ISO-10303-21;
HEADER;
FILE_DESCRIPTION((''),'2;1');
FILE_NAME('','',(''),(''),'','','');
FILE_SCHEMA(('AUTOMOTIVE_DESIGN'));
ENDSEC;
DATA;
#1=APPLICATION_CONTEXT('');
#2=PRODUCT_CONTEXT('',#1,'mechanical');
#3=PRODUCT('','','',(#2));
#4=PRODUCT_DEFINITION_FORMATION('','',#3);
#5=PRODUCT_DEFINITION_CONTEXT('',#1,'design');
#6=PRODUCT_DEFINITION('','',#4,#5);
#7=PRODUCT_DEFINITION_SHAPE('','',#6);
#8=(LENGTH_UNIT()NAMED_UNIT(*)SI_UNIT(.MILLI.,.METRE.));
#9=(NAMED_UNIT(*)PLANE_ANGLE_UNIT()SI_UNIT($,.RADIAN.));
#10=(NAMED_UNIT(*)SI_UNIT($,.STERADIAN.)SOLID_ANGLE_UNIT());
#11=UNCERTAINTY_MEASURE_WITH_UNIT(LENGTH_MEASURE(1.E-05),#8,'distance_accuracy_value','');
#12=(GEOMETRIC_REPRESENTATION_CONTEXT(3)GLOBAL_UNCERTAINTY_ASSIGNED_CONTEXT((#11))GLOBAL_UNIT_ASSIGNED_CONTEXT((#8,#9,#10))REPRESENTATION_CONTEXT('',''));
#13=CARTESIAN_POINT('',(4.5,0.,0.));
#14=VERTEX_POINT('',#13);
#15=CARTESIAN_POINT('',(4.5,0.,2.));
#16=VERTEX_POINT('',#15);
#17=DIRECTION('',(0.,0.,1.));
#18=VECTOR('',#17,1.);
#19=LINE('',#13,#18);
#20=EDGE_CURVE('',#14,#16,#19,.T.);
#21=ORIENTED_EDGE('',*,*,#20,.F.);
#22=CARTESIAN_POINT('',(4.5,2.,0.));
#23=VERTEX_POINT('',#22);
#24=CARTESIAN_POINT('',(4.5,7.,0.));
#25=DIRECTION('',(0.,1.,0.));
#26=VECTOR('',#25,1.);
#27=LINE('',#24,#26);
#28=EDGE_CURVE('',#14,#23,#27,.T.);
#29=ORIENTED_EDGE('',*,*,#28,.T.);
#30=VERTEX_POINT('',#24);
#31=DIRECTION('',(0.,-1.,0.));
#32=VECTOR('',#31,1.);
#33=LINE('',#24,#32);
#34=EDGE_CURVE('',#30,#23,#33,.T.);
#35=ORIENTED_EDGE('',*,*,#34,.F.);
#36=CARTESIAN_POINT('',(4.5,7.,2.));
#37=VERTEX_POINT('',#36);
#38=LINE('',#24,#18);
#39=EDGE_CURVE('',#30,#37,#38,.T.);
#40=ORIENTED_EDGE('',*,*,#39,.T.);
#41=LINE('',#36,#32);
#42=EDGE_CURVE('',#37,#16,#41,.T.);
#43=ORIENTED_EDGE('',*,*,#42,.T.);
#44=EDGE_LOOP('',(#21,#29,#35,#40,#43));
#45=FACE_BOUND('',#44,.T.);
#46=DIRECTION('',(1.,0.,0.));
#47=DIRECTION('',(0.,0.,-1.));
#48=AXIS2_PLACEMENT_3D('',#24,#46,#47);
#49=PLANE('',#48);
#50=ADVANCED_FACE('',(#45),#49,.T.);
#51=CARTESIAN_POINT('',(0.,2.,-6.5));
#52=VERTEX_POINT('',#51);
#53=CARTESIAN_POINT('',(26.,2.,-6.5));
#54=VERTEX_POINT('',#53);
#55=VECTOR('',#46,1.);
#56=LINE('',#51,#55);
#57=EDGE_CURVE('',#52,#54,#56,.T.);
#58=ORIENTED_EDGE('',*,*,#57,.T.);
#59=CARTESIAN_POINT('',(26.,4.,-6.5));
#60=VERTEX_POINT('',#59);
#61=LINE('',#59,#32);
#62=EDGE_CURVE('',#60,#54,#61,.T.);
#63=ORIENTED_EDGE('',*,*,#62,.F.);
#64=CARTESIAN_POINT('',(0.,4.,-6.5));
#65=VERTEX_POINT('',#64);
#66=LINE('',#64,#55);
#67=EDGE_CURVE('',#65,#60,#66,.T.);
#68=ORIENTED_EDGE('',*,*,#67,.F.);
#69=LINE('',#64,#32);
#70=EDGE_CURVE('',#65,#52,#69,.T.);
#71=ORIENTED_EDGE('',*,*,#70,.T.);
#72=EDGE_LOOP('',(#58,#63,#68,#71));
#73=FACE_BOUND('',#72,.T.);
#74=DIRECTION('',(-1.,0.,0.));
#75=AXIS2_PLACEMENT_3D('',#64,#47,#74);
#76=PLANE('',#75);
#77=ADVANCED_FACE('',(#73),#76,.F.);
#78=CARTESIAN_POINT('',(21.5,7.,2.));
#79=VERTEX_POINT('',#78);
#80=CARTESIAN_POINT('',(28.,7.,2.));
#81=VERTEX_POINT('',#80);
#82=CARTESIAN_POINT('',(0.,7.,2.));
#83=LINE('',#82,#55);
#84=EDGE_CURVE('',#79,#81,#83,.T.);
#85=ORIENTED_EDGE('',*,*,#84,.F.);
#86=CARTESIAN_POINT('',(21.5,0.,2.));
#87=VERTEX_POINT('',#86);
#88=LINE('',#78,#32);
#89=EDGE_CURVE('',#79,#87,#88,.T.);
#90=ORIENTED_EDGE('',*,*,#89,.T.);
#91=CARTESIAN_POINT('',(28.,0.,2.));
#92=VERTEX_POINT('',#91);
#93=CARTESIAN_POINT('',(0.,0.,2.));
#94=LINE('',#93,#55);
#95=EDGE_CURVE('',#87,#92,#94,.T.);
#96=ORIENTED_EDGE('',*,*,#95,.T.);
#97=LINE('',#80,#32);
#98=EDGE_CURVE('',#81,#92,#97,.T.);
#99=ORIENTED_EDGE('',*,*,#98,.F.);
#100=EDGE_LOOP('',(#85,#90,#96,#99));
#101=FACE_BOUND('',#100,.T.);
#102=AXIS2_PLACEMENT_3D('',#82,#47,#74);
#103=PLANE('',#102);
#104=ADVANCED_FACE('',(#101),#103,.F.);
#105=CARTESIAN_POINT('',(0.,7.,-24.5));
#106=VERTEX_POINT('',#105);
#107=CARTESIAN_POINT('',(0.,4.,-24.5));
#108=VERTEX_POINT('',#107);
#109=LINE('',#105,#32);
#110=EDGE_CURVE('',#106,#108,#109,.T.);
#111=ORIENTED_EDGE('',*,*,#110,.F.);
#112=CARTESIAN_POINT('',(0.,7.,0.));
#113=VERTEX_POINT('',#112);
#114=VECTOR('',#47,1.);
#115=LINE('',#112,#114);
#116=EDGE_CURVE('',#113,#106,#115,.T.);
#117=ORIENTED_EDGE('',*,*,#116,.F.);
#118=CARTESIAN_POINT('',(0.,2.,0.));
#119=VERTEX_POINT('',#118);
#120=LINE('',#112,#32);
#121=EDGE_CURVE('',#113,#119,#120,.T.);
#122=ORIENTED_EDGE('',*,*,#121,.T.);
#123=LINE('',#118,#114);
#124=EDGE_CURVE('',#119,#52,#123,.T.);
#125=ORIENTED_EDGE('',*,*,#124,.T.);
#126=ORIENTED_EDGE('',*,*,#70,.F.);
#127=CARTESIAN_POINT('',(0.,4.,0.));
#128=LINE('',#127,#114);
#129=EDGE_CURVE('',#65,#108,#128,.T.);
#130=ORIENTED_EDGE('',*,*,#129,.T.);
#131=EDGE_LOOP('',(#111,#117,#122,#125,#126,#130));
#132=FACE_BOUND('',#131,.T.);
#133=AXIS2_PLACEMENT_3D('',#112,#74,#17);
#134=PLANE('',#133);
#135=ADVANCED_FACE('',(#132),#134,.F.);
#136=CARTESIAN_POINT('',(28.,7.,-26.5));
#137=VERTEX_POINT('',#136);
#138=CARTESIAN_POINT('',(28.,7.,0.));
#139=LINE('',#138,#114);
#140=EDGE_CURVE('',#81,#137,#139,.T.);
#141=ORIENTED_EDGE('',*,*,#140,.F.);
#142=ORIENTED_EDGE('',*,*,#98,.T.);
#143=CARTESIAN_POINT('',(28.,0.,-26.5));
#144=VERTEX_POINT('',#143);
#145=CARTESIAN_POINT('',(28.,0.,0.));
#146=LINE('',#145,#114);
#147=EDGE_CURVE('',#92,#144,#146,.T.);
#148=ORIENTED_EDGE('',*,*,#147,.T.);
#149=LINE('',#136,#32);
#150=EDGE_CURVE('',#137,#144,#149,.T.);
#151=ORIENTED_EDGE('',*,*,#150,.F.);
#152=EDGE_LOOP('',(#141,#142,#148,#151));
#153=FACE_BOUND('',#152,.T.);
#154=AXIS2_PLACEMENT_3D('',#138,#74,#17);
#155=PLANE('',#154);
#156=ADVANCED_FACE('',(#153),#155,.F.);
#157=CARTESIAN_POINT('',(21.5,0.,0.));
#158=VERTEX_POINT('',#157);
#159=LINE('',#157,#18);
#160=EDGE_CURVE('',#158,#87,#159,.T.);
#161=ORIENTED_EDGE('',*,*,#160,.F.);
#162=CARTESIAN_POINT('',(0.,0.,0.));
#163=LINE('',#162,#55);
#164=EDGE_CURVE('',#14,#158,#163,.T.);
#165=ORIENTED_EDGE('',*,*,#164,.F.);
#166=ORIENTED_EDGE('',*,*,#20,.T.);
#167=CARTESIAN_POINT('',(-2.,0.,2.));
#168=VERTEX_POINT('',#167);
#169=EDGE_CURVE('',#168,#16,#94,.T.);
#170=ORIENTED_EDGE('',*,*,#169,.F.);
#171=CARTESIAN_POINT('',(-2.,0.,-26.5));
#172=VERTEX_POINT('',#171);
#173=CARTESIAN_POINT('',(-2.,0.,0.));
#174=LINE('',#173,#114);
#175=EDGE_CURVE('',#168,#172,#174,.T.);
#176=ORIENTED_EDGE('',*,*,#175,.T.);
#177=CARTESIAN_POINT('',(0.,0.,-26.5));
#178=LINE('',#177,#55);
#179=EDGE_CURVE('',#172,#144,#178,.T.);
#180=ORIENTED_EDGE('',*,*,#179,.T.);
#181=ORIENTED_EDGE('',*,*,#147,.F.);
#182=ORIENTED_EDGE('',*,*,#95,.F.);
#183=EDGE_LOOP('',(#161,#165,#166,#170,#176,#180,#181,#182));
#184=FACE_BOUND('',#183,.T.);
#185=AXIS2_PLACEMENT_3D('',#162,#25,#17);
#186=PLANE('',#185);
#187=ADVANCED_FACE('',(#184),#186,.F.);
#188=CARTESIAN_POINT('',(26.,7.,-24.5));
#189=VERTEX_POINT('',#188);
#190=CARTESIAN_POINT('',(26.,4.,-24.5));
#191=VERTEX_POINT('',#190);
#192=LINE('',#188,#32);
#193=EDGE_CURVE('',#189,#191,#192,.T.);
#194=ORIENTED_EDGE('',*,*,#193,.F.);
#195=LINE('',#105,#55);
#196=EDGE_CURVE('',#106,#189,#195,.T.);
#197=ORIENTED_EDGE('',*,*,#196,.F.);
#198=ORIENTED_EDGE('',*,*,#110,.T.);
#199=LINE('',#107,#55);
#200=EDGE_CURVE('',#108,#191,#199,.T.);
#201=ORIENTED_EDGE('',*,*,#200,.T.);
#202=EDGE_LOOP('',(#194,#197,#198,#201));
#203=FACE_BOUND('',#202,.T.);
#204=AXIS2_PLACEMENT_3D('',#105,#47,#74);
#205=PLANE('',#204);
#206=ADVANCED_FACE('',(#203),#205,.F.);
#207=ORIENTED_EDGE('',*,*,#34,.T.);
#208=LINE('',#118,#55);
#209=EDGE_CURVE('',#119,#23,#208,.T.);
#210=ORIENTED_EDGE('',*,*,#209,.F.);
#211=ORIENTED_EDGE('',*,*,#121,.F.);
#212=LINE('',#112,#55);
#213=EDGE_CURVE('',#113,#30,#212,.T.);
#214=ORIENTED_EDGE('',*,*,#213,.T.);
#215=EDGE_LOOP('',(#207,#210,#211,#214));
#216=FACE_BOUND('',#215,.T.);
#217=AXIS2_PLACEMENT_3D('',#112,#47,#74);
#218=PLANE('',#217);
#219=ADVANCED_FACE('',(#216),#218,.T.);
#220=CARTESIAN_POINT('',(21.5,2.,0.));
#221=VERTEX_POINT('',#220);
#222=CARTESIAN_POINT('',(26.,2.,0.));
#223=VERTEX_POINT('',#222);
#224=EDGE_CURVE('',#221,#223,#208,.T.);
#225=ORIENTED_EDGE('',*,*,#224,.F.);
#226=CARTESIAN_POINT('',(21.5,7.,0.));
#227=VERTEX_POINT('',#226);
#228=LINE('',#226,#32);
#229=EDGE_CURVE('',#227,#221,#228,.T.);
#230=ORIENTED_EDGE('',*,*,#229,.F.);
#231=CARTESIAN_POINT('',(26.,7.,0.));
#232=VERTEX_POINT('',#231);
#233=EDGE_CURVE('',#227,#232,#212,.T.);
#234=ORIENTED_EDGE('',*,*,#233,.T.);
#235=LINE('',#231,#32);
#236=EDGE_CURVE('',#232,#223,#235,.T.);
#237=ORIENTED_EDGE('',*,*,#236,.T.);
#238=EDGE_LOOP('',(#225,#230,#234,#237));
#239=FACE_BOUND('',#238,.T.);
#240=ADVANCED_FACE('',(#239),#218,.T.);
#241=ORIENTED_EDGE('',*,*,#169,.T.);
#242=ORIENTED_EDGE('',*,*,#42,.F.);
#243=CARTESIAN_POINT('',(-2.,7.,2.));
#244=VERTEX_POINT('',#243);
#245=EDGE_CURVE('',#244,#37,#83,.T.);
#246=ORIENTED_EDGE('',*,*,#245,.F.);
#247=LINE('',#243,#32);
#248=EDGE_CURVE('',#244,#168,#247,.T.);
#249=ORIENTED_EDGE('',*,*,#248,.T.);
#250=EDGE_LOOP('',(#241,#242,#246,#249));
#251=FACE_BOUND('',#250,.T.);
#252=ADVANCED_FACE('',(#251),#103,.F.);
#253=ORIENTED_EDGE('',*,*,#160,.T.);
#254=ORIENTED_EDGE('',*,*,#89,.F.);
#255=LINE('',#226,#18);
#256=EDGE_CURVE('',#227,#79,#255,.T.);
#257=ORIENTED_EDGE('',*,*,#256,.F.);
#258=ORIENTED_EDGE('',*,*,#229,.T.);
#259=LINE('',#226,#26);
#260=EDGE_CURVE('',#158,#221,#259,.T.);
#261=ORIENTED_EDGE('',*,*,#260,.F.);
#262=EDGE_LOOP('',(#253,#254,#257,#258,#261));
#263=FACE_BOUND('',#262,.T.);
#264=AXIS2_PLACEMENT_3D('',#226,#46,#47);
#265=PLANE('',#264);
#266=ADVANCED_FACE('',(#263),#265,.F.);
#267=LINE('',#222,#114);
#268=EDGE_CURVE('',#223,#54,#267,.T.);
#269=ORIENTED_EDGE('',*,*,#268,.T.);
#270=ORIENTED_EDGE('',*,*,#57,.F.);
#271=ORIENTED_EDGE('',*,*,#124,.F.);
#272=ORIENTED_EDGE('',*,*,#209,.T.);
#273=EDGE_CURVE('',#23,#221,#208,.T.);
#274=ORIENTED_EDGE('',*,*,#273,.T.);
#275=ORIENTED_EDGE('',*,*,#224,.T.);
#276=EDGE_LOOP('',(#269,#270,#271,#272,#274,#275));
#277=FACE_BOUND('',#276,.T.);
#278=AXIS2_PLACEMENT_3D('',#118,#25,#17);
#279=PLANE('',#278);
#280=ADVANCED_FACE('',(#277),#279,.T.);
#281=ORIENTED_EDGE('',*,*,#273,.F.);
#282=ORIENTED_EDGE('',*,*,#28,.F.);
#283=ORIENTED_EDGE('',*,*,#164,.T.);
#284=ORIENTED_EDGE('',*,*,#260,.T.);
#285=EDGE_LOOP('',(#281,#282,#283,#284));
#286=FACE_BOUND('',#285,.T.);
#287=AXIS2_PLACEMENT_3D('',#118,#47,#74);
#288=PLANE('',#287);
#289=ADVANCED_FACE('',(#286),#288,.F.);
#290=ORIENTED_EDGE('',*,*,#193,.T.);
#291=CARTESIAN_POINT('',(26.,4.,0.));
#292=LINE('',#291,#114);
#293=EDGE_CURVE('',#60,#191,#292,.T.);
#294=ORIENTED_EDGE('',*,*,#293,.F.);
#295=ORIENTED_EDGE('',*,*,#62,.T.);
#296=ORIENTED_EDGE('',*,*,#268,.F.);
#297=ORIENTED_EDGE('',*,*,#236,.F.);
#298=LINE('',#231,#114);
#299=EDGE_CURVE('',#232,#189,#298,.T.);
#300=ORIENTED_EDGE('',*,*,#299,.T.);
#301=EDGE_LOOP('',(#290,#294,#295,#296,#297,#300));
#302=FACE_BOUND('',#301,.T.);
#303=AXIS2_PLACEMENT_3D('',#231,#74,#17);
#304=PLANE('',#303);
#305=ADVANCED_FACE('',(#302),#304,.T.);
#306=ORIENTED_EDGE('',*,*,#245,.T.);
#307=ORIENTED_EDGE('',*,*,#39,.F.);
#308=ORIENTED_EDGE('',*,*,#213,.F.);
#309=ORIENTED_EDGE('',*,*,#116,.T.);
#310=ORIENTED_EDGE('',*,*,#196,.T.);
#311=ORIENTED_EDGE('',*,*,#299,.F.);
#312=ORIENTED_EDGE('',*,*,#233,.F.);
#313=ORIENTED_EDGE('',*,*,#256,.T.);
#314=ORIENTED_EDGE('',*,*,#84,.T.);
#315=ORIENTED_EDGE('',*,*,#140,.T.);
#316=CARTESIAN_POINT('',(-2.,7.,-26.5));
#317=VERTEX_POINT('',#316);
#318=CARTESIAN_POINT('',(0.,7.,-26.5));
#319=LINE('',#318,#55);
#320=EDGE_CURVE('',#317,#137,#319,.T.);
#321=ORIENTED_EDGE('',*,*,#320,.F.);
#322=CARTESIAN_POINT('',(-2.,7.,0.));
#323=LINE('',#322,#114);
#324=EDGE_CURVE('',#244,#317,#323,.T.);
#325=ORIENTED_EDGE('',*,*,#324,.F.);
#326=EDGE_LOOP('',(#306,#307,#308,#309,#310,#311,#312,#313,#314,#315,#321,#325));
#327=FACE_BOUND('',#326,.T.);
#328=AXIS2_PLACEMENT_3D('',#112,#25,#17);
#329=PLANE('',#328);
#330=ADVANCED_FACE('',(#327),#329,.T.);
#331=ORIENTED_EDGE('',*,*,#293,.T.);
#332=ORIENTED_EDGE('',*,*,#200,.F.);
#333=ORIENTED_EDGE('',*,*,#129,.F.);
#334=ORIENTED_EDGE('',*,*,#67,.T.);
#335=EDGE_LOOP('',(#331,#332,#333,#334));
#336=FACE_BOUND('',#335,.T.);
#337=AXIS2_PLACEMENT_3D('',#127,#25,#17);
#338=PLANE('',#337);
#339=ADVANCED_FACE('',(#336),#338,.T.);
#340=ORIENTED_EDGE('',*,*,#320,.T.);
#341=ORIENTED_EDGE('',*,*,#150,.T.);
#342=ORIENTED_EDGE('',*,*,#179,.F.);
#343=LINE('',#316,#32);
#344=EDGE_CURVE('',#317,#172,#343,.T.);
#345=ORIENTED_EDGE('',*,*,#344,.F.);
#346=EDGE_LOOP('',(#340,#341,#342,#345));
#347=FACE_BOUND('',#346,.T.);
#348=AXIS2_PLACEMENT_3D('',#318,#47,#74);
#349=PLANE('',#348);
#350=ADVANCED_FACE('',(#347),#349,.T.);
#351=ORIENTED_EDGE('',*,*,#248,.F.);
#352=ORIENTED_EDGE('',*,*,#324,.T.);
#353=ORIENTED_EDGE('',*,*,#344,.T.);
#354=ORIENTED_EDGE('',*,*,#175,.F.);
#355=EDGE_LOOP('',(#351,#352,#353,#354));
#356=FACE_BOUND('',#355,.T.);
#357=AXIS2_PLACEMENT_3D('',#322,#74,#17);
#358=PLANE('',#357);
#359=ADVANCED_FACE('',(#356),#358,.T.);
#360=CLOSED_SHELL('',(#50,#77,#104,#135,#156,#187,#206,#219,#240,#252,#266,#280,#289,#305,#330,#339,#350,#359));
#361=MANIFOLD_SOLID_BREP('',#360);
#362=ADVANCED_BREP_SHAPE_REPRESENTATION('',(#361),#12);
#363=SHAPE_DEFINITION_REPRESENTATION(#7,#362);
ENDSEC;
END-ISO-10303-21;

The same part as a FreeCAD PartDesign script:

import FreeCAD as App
import Part
import Sketcher


def add_polygon(sketch, points):
    """Adds a closed chain of lines whose ends are joined by coincident constraints."""
    first, n = sketch.GeometryCount, len(points)
    for a, b in zip(points, points[1:] + points[:1]):
        sketch.addGeometry(Part.LineSegment(App.Vector(*a, 0), App.Vector(*b, 0)), False)
    for i in range(n):
        sketch.addConstraint(Sketcher.Constraint("Coincident", first + i, 2, first + (i + 1) % n, 1))

doc = App.newDocument("Part")
body = doc.addObject("PartDesign::Body", "Body")

sketch1 = body.newObject("Sketcher::SketchObject", "Sketch")
sketch1.AttachmentSupport = (doc.getObject("XZ_Plane"), [""])
sketch1.MapMode = "FlatFace"
add_polygon(sketch1, [(0, 0), (0, -24.5), (26, -24.5), (26, 0), (21.5, 0), (21.5, 2), (28, 2), (28, -26.5), (-2, -26.5), (-2, 2), (4.5, 2), (4.5, 0)])
sketch1.addConstraint(Sketcher.Constraint("Vertical", 0))
sketch1.addConstraint(Sketcher.Constraint("Horizontal", 1))
sketch1.addConstraint(Sketcher.Constraint("Vertical", 2))
sketch1.addConstraint(Sketcher.Constraint("Horizontal", 3))
sketch1.addConstraint(Sketcher.Constraint("Vertical", 4))
sketch1.addConstraint(Sketcher.Constraint("Horizontal", 5))
sketch1.addConstraint(Sketcher.Constraint("Vertical", 6))
sketch1.addConstraint(Sketcher.Constraint("Horizontal", 7))
sketch1.addConstraint(Sketcher.Constraint("Vertical", 8))
sketch1.addConstraint(Sketcher.Constraint("Horizontal", 9))
sketch1.addConstraint(Sketcher.Constraint("Vertical", 10))
sketch1.addConstraint(Sketcher.Constraint("Horizontal", 11))
sketch1.addConstraint(Sketcher.Constraint("Coincident", 11, 2, -1, 1))
sketch1.addConstraint(Sketcher.Constraint("PointOnObject", 2, 2, -1))
sketch1.addConstraint(Sketcher.Constraint("Horizontal", 5, 2, 8, 2))
sketch1.addConstraint(Sketcher.Constraint("Equal", 5, 9))
sketch1.addConstraint(Sketcher.Constraint("Equal", 3, 11))
sketch1.addConstraint(Sketcher.Constraint("DistanceX", 1, 1, 1, 2, 26.0))
sketch1.addConstraint(Sketcher.Constraint("DistanceX", 7, 2, 7, 1, 30.0))
sketch1.addConstraint(Sketcher.Constraint("DistanceY", 4, 1, 4, 2, 2.0))
sketch1.addConstraint(Sketcher.Constraint("DistanceX", 3, 2, 3, 1, 4.5))
sketch1.addConstraint(Sketcher.Constraint("DistanceY", 0, 2, 0, 1, 24.5))
sketch1.addConstraint(Sketcher.Constraint("DistanceY", 6, 2, 6, 1, 28.5))
pad1 = body.newObject("PartDesign::Pad", "Pad")
pad1.Profile = sketch1
pad1.Length = 7
pad1.Reversed = True

sketch2 = body.newObject("Sketcher::SketchObject", "Sketch001")
sketch2.AttachmentSupport = (doc.getObject("XZ_Plane"), [""])
sketch2.MapMode = "FlatFace"
add_polygon(sketch2, [(26, -6.5), (0, -6.5), (0, 0), (26, 0)])
sketch2.addConstraint(Sketcher.Constraint("Horizontal", 0))
sketch2.addConstraint(Sketcher.Constraint("Vertical", 1))
sketch2.addConstraint(Sketcher.Constraint("Horizontal", 2))
sketch2.addConstraint(Sketcher.Constraint("Vertical", 3))
sketch2.addConstraint(Sketcher.Constraint("Coincident", 1, 2, -1, 1))
sketch2.addConstraint(Sketcher.Constraint("DistanceX", 0, 2, 0, 1, 26.0))
sketch2.addConstraint(Sketcher.Constraint("DistanceY", 1, 1, 1, 2, 6.5))
pad2 = body.newObject("PartDesign::Pad", "Pad001")
pad2.Profile = sketch2
pad2.Length = 2
pad2.Reversed = True

sketch3 = body.newObject("Sketcher::SketchObject", "Sketch002")
sketch3.AttachmentSupport = (doc.getObject("XZ_Plane"), [""])
sketch3.MapMode = "FlatFace"
add_polygon(sketch3, [(0, -24.5), (0, -6.5), (26, -6.5), (26, -24.5)])
sketch3.addConstraint(Sketcher.Constraint("Vertical", 0))
sketch3.addConstraint(Sketcher.Constraint("Horizontal", 1))
sketch3.addConstraint(Sketcher.Constraint("Vertical", 2))
sketch3.addConstraint(Sketcher.Constraint("Horizontal", 3))
sketch3.addConstraint(Sketcher.Constraint("PointOnObject", 0, 2, -2))
sketch3.addConstraint(Sketcher.Constraint("DistanceX", 1, 1, 1, 2, 26.0))
sketch3.addConstraint(Sketcher.Constraint("DistanceY", 0, 1, 0, 2, 18.0))
sketch3.addConstraint(Sketcher.Constraint("DistanceY", 0, 2, -1, 1, 6.5))
pad3 = body.newObject("PartDesign::Pad", "Pad002")
pad3.Profile = sketch3
pad3.Length = 4
pad3.Reversed = True

doc.recompute()
